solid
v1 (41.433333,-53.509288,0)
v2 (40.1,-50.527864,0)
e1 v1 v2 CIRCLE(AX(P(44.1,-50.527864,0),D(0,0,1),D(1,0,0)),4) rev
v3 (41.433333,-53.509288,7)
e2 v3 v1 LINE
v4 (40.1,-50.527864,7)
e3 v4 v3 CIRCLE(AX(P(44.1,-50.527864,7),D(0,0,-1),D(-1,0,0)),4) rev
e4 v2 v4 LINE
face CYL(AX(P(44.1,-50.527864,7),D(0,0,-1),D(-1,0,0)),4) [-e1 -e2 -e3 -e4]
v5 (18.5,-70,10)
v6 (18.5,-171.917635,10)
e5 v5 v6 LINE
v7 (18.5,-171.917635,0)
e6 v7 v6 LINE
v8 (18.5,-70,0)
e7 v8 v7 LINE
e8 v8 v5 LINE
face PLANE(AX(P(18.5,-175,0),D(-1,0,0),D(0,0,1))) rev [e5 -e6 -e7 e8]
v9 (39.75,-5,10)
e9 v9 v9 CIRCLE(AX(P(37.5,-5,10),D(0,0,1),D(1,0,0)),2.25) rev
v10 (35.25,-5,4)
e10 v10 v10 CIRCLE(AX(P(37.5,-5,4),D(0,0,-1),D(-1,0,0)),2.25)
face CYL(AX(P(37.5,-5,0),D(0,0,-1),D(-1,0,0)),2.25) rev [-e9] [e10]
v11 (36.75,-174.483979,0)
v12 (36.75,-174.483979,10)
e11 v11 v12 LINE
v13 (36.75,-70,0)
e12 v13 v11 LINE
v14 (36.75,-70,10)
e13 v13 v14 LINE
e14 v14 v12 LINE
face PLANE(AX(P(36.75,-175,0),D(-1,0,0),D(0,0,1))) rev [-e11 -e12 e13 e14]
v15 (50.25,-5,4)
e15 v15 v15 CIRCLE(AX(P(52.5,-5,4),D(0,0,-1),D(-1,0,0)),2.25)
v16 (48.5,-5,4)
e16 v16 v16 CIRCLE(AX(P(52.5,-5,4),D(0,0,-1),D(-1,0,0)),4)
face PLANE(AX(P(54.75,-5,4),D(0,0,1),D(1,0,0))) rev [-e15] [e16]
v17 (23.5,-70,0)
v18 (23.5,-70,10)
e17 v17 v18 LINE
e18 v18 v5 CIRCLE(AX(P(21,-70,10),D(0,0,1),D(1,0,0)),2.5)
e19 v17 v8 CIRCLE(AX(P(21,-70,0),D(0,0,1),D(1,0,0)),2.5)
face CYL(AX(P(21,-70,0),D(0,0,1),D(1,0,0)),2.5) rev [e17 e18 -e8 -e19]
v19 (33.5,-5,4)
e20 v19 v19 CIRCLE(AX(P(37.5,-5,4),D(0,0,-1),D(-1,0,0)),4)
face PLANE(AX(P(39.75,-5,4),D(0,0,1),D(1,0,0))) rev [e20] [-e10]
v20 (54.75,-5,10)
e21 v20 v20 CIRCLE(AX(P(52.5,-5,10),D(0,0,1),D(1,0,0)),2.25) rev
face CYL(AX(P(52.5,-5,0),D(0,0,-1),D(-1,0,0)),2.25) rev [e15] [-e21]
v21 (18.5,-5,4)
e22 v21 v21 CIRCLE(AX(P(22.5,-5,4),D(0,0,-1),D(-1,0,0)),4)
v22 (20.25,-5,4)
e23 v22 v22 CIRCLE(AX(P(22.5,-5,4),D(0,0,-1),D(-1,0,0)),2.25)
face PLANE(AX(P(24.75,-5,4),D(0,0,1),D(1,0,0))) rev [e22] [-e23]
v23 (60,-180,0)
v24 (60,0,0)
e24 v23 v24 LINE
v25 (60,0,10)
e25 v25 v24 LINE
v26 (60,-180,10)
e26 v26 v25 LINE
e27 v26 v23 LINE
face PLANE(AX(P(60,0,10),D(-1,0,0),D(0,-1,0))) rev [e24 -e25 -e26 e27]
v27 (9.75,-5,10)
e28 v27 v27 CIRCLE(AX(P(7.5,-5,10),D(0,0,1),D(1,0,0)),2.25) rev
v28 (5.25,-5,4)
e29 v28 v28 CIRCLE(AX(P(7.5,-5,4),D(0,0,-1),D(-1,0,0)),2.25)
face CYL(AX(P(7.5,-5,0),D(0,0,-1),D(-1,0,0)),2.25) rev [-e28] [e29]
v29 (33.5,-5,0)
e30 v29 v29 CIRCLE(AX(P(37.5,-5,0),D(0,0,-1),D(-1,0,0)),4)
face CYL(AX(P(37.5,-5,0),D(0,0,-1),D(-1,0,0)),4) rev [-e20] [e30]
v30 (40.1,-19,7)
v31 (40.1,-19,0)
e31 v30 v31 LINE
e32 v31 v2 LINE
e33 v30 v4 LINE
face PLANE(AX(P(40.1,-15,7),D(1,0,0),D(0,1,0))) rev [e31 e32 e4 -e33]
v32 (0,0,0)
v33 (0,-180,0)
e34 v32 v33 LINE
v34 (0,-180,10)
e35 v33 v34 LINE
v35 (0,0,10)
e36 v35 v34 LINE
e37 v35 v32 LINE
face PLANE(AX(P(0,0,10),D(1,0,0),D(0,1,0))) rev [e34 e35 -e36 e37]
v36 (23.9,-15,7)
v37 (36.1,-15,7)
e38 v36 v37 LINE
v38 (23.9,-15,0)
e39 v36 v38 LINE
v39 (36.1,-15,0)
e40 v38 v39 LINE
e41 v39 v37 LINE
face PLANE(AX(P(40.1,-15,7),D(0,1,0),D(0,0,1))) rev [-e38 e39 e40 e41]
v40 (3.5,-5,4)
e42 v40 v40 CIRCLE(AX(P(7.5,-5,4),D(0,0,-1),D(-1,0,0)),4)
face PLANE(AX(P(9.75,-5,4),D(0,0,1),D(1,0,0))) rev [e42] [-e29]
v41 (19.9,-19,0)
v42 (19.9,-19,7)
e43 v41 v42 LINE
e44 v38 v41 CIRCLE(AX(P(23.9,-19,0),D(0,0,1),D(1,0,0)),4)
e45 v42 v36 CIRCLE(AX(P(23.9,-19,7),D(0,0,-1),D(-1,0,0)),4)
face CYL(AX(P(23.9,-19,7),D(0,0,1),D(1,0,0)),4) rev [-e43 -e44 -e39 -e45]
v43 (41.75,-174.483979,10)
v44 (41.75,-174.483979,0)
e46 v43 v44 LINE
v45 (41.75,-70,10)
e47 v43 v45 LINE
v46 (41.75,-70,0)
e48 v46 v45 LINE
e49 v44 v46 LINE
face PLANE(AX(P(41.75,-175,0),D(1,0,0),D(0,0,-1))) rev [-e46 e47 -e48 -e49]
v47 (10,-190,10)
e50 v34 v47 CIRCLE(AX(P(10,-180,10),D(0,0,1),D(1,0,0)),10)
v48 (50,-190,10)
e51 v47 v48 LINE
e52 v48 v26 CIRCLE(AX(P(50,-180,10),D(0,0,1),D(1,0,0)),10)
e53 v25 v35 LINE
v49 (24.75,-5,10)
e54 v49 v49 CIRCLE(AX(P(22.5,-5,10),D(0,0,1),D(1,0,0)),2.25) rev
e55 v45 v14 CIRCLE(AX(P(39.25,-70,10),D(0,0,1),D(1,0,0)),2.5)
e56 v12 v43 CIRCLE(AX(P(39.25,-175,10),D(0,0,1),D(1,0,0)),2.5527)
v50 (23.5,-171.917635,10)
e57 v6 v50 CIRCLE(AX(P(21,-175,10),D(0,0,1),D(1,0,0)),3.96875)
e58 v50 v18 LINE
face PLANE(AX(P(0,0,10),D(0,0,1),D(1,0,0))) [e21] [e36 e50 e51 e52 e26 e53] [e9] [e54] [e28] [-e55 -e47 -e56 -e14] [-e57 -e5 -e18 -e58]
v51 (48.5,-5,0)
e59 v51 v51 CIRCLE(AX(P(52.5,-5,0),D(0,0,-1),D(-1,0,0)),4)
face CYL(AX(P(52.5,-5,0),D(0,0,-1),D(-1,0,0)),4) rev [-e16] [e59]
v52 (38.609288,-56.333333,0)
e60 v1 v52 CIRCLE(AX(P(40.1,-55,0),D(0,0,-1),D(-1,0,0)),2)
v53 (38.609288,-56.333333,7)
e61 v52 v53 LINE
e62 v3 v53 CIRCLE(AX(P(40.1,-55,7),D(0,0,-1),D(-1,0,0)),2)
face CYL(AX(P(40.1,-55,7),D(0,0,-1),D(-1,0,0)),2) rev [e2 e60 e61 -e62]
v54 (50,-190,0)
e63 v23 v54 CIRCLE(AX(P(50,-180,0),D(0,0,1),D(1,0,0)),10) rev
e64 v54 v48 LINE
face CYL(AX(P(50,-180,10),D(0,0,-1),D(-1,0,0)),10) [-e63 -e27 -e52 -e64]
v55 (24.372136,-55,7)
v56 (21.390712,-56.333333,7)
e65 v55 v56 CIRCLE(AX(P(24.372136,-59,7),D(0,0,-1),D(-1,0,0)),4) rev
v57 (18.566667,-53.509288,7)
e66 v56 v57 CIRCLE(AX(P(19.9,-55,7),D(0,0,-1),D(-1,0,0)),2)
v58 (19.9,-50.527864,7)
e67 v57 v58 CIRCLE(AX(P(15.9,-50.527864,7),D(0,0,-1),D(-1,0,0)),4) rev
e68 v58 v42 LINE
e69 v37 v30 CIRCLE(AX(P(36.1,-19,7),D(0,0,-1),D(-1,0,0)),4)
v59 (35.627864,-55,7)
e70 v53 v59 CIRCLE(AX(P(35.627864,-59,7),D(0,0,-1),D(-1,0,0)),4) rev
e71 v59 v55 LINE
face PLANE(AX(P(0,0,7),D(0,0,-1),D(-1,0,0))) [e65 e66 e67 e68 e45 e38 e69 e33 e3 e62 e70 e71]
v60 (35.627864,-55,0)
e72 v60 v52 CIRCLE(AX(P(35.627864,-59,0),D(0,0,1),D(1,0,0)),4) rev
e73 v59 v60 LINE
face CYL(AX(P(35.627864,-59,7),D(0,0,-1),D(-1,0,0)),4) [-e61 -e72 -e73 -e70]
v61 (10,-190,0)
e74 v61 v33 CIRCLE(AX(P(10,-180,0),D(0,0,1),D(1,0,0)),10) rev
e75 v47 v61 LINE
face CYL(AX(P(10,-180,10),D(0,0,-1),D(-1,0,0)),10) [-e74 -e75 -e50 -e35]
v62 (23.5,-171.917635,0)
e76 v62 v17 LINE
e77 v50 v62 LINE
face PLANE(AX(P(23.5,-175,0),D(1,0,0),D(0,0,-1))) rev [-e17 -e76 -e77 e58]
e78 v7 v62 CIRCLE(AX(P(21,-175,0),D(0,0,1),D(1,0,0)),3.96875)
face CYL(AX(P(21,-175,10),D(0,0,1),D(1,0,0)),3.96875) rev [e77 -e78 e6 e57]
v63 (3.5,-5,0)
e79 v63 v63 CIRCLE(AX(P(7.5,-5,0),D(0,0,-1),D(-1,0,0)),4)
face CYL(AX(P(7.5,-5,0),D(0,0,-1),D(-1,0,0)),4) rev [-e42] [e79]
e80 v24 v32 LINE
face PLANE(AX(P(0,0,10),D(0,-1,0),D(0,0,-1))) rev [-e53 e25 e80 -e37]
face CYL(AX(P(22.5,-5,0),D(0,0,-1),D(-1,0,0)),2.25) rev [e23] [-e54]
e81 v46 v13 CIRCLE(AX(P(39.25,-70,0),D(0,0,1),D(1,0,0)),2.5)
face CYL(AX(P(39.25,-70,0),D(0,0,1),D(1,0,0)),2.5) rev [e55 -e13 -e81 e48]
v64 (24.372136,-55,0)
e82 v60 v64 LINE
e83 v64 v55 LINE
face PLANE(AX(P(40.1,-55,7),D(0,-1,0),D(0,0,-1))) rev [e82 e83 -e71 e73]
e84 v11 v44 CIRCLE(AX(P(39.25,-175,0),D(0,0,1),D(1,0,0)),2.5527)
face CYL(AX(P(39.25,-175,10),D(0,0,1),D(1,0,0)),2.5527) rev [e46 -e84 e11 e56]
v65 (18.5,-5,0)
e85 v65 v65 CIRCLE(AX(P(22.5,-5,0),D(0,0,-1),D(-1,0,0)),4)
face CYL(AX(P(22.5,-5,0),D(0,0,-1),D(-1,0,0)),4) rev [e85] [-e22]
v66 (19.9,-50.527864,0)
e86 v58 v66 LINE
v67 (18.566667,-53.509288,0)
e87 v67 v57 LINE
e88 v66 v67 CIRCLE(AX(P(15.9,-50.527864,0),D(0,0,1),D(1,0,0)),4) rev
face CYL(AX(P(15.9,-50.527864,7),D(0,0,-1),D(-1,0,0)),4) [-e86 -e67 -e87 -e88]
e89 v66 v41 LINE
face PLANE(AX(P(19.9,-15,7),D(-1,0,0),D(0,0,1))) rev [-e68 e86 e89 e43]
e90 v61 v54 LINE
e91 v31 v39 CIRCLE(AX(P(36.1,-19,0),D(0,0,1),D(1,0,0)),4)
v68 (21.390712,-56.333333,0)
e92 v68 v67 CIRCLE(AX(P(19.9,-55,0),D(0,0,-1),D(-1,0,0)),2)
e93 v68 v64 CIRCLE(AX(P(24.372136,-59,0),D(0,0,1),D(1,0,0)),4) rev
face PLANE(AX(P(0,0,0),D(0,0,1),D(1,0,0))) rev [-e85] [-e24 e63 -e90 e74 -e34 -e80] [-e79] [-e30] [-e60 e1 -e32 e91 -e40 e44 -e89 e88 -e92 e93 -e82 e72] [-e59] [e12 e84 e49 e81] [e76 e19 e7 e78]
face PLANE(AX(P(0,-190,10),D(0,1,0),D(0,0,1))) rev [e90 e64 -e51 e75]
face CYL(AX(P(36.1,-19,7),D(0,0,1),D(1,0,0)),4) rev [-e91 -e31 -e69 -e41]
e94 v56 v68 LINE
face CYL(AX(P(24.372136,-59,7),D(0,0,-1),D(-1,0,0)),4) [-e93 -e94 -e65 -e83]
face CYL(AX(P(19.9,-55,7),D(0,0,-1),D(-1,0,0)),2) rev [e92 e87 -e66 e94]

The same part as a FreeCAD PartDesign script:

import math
import FreeCAD as App
import Part
import Sketcher


def edges_at(feature, points):
    """Names of the edges that pass closest to the given points."""
    edges = feature.Shape.Edges
    near = lambda p: min(range(len(edges)), key=lambda i: edges[i].distToShape(Part.Vertex(*p))[0])
    return sorted({f"Edge{near(p) + 1}" for p in points})

doc = App.newDocument("Part")
body = doc.addObject("PartDesign::Body", "Body")

sketch1 = doc.addObject("Sketcher::SketchObject", "Sketch")
body.addObject(sketch1)
sketch1.AttachmentSupport = (doc.XY_Plane, [""])
sketch1.MapMode = "FlatFace"
sketch1.addGeometry([
    Part.LineSegment(App.Vector(60, 0, 0), App.Vector(0, 0, 0)),
    Part.LineSegment(App.Vector(0, 0, 0), App.Vector(0, -190, 0)),
    Part.LineSegment(App.Vector(0, -190, 0), App.Vector(60, -190, 0)),
    Part.LineSegment(App.Vector(60, -190, 0), App.Vector(60, 0, 0)),
], False)
sketch1.addConstraint([
    Sketcher.Constraint("Coincident", 0, 2, 1, 1),
    Sketcher.Constraint("Coincident", 1, 2, 2, 1),
    Sketcher.Constraint("Coincident", 2, 2, 3, 1),
    Sketcher.Constraint("Coincident", 3, 2, 0, 1),
    Sketcher.Constraint("Horizontal", 0),
    Sketcher.Constraint("Vertical", 1),
    Sketcher.Constraint("Horizontal", 2),
    Sketcher.Constraint("Vertical", 3),
    Sketcher.Constraint("Coincident", 0, 2, -1, 1),
    Sketcher.Constraint("DistanceX", 0, 2, 0, 1, 60.0),
    Sketcher.Constraint("DistanceY", 1, 2, 1, 1, 190.0),
])
pad1 = doc.addObject("PartDesign::Pad", "Pad")
body.addObject(pad1)
pad1.Profile = sketch1
pad1.Length = 10

sketch2 = doc.addObject("Sketcher::SketchObject", "Sketch001")
body.addObject(sketch2)
sketch2.AttachmentSupport = (doc.XY_Plane, [""])
sketch2.MapMode = "FlatFace"
sketch2.addGeometry([
    Part.Circle(App.Vector(52.5, -5, 0), App.Vector(0, 0, 1), 2.2),
    Part.Circle(App.Vector(37.5, -5, 0), App.Vector(0, 0, 1), 2.2),
    Part.Circle(App.Vector(22.5, -5, 0), App.Vector(0, 0, 1), 2.2),
    Part.Circle(App.Vector(7.5, -5, 0), App.Vector(0, 0, 1), 2.2),
], False)
sketch2.addConstraint([
    Sketcher.Constraint("Equal", 0, 1),
    Sketcher.Constraint("Equal", 1, 2),
    Sketcher.Constraint("Equal", 2, 3),
    Sketcher.Constraint("Horizontal", 0, 3, 1, 3),
    Sketcher.Constraint("Horizontal", 1, 3, 2, 3),
    Sketcher.Constraint("Horizontal", 2, 3, 3, 3),
    Sketcher.Constraint("Diameter", 0, 4.5),
    Sketcher.Constraint("DistanceY", 0, 3, -1, 1, 5.0),
    Sketcher.Constraint("DistanceX", 1, 3, 0, 3, 15.0),
    Sketcher.Constraint("DistanceX", 2, 3, 1, 3, 15.0),
    Sketcher.Constraint("DistanceX", 3, 3, 2, 3, 15.0),
    Sketcher.Constraint("DistanceX", -1, 1, 0, 3, 52.5),
])
doc.recompute()
hole = doc.addObject("PartDesign::Hole", "Hole")
body.addObject(hole)
hole.Profile = sketch2
hole.ThreadType = "None"
hole.Diameter = 4.5
hole.DepthType = "ThroughAll"
hole.HoleCutType = "Counterbore"
hole.HoleCutDiameter = 8
hole.HoleCutDepth = 4
hole.Reversed = True

sketch3 = doc.addObject("Sketcher::SketchObject", "Sketch002")
body.addObject(sketch3)
sketch3.AttachmentSupport = (doc.XY_Plane, [""])
sketch3.MapMode = "FlatFace"
sketch3.AttachmentOffset = App.Placement(App.Vector(0, 0, 10), App.Rotation())
sketch3.addGeometry(Part.Circle(App.Vector(39.2, -175, 0), App.Vector(0, 0, 1), 2.6), False)
sketch3.addConstraint([
    Sketcher.Constraint("DistanceY", 0, 3, -1, 1, 175.0),
    Sketcher.Constraint("Diameter", 0, 5.1054),
    Sketcher.Constraint("DistanceX", -1, 1, 0, 3, 39.25),
])
doc.recompute()
hole2 = doc.addObject("PartDesign::Hole", "Hole001")
body.addObject(hole2)
hole2.Profile = sketch3
hole2.ThreadType = "None"
hole2.Diameter = 5.1054
hole2.DepthType = "ThroughAll"

sketch4 = doc.addObject("Sketcher::SketchObject", "Sketch003")
body.addObject(sketch4)
sketch4.AttachmentSupport = (doc.XY_Plane, [""])
sketch4.MapMode = "FlatFace"
sketch4.AttachmentOffset = App.Placement(App.Vector(0, 0, 10), App.Rotation())
sketch4.addGeometry(Part.Circle(App.Vector(21, -175, 0), App.Vector(0, 0, 1), 4), False)
sketch4.addConstraint([
    Sketcher.Constraint("DistanceX", -1, 1, 0, 3, 21.0),
    Sketcher.Constraint("DistanceY", 0, 3, -1, 1, 175.0),
    Sketcher.Constraint("Diameter", 0, 7.9375),
])
doc.recompute()
hole3 = doc.addObject("PartDesign::Hole", "Hole002")
body.addObject(hole3)
hole3.Profile = sketch4
hole3.ThreadType = "None"
hole3.Diameter = 7.9375
hole3.DepthType = "ThroughAll"

sketch5 = doc.addObject("Sketcher::SketchObject", "Sketch004")
body.addObject(sketch5)
sketch5.AttachmentSupport = (doc.XY_Plane, [""])
sketch5.MapMode = "FlatFace"
sketch5.AttachmentOffset = App.Placement(App.Vector(0, 0, 10), App.Rotation())
sketch5.addGeometry([
    Part.LineSegment(App.Vector(36.8, -70, 0), App.Vector(36.8, -175, 0)),
    Part.ArcOfCircle(Part.Circle(App.Vector(39.2, -175, 0), App.Vector(0, 0, 1), 2.5), math.radians(180), math.radians(360)),
    Part.LineSegment(App.Vector(41.8, -175, 0), App.Vector(41.8, -70, 0)),
    Part.ArcOfCircle(Part.Circle(App.Vector(39.2, -70, 0), App.Vector(0, 0, 1), 2.5), math.radians(0), math.radians(180)),
    Part.LineSegment(App.Vector(18.5, -70, 0), App.Vector(18.5, -175, 0)),
    Part.ArcOfCircle(Part.Circle(App.Vector(21, -175, 0), App.Vector(0, 0, 1), 2.5), math.radians(180), math.radians(360)),
    Part.LineSegment(App.Vector(23.5, -175, 0), App.Vector(23.5, -70, 0)),
    Part.ArcOfCircle(Part.Circle(App.Vector(21, -70, 0), App.Vector(0, 0, 1), 2.5), math.radians(0), math.radians(180)),
], False)
sketch5.addConstraint([
    Sketcher.Constraint("Tangent", 0, 2, 1, 1),
    Sketcher.Constraint("Tangent", 1, 2, 2, 1),
    Sketcher.Constraint("Tangent", 2, 2, 3, 1),
    Sketcher.Constraint("Tangent", 3, 2, 0, 1),
    Sketcher.Constraint("Tangent", 4, 2, 5, 1),
    Sketcher.Constraint("Tangent", 5, 2, 6, 1),
    Sketcher.Constraint("Tangent", 6, 2, 7, 1),
    Sketcher.Constraint("Tangent", 7, 2, 4, 1),
    Sketcher.Constraint("Vertical", 0),
    Sketcher.Constraint("Vertical", 2),
    Sketcher.Constraint("Vertical", 4),
    Sketcher.Constraint("Vertical", 6),
    Sketcher.Constraint("Equal", 3, 5),
    Sketcher.Constraint("Horizontal", 1, 3, 5, 3),
    Sketcher.Constraint("Horizontal", 3, 3, 7, 3),
    Sketcher.Constraint("Radius", 1, 2.5),
    Sketcher.Constraint("DistanceY", 0, 2, 0, 1, 105.0),
    Sketcher.Constraint("DistanceY", 1, 3, -1, 1, 175.0),
    Sketcher.Constraint("DistanceX", -1, 1, 5, 3, 21.0),
    Sketcher.Constraint("DistanceX", -1, 1, 1, 3, 39.25),
])
pocket1 = doc.addObject("PartDesign::Pocket", "Pocket")
body.addObject(pocket1)
pocket1.Profile = sketch5
pocket1.Type = "ThroughAll"
doc.recompute()

fillet = doc.addObject("PartDesign::Fillet", "Fillet")
body.addObject(fillet)
fillet.Base = (pocket1, edges_at(pocket1, [(60, -190, 5), (0, -190, 5)]))
fillet.Radius = 10

sketch6 = doc.addObject("Sketcher::SketchObject", "Sketch005")
body.addObject(sketch6)
sketch6.AttachmentSupport = (doc.XY_Plane, [""])
sketch6.MapMode = "FlatFace"
sketch6.addGeometry([
    Part.LineSegment(App.Vector(40, -15, 0), App.Vector(40, -55, 0)),
    Part.LineSegment(App.Vector(40, -55, 0), App.Vector(20, -55, 0)),
    Part.LineSegment(App.Vector(20, -55, 0), App.Vector(20, -15, 0)),
    Part.LineSegment(App.Vector(20, -15, 0), App.Vector(40, -15, 0)),
], False)
sketch6.addConstraint([
    Sketcher.Constraint("Coincident", 0, 2, 1, 1),
    Sketcher.Constraint("Coincident", 1, 2, 2, 1),
    Sketcher.Constraint("Coincident", 2, 2, 3, 1),
    Sketcher.Constraint("Coincident", 3, 2, 0, 1),
    Sketcher.Constraint("Vertical", 0),
    Sketcher.Constraint("Horizontal", 1),
    Sketcher.Constraint("Vertical", 2),
    Sketcher.Constraint("Horizontal", 3),
    Sketcher.Constraint("DistanceY", 0, 2, 0, 1, 40.0),
    Sketcher.Constraint("DistanceX", 1, 2, 1, 1, 20.2),
    Sketcher.Constraint("DistanceY", 0, 2, -1, 1, 55.0),
    Sketcher.Constraint("DistanceX", -1, 1, 0, 2, 40.1),
])
pocket2 = doc.addObject("PartDesign::Pocket", "Pocket001")
body.addObject(pocket2)
pocket2.Profile = sketch6
pocket2.Length = 7
pocket2.Reversed = True

sketch7 = doc.addObject("Sketcher::SketchObject", "Sketch006")
body.addObject(sketch7)
sketch7.AttachmentSupport = (doc.XY_Plane, [""])
sketch7.MapMode = "FlatFace"
sketch7.addGeometry([
    Part.Circle(App.Vector(40.1, -55, 0), App.Vector(0, 0, 1), 2),
    Part.Circle(App.Vector(19.9, -55, 0), App.Vector(0, 0, 1), 2),
], False)
sketch7.addConstraint([
    Sketcher.Constraint("Equal", 0, 1),
    Sketcher.Constraint("Horizontal", 0, 3, 1, 3),
    Sketcher.Constraint("Diameter", 0, 4.0),
    Sketcher.Constraint("DistanceY", 0, 3, -1, 1, 55.0),
    Sketcher.Constraint("DistanceX", -1, 1, 0, 3, 40.1),
    Sketcher.Constraint("DistanceX", -1, 1, 1, 3, 19.9),
])
pocket3 = doc.addObject("PartDesign::Pocket", "Pocket002")
body.addObject(pocket3)
pocket3.Profile = sketch7
pocket3.Length = 7
pocket3.Reversed = True
doc.recompute()

fillet2 = doc.addObject("PartDesign::Fillet", "Fillet001")
body.addObject(fillet2)
fillet2.Base = (pocket3, edges_at(pocket3, [
    (19.9, -15, 3.5),
    (40.1, -15, 3.5),
    (38.1, -55, 3.5),
    (40.1, -53, 3.5),
    (19.9, -53, 3.5),
    (21.9, -55, 3.5),
]))
fillet2.Radius = 4

doc.recompute()
